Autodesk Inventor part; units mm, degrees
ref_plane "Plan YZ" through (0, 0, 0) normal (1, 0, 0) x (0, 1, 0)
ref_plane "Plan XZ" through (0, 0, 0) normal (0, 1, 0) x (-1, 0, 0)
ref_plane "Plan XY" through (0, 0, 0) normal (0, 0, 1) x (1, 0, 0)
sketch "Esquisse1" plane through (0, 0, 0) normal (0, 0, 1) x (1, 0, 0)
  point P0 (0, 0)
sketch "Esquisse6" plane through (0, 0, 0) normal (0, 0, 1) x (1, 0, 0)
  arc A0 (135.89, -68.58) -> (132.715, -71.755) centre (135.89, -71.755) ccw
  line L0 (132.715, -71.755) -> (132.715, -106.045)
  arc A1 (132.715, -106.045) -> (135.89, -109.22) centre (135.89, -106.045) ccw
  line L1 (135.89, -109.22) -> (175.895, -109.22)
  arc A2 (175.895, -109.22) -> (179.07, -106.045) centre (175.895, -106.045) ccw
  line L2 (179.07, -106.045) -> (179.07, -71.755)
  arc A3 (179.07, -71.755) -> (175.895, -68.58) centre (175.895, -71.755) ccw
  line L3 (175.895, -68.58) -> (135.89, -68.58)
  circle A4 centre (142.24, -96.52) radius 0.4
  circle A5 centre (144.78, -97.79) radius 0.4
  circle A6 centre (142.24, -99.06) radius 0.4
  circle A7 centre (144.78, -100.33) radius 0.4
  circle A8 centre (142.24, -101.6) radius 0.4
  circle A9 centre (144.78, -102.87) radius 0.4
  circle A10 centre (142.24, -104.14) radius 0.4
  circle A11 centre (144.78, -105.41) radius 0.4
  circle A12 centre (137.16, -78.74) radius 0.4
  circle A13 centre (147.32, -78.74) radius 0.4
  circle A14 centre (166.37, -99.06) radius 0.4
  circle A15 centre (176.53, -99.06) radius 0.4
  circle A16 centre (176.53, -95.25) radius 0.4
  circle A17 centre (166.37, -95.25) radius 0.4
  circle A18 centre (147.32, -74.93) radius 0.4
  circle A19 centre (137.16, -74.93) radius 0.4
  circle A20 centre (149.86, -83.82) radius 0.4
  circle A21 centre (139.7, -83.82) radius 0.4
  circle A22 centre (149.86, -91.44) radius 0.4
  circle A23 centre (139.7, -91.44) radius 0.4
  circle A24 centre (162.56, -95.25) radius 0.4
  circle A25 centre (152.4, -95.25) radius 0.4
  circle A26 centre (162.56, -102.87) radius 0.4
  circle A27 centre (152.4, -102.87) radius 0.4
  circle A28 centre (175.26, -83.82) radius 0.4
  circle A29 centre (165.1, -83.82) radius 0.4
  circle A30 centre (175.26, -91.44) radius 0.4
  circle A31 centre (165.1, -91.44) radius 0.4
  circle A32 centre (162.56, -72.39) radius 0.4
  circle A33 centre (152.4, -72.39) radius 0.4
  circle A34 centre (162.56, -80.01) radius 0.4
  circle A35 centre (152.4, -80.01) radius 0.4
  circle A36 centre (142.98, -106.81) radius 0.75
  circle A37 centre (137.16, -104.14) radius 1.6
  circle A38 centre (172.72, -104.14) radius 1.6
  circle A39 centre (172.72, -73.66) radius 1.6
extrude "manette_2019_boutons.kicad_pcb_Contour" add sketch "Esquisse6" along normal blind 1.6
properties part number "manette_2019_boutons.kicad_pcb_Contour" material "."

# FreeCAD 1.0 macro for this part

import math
import FreeCAD as App
import Part
import Sketcher
from FreeCAD import Vector
Q = App.Units.Quantity

doc = App.newDocument("Part")
body = doc.addObject("PartDesign::Body", "Body")

# Sketch on XY plane
sketch1 = doc.addObject("Sketcher::SketchObject", "Sketch")
body.addObject(sketch1)
sketch1.AttachmentSupport = (doc.XY_Plane, [""])
sketch1.MapMode = "FlatFace"
sketch1.addGeometry([
    Part.LineSegment(Vector(175.895, -68.58, 0), Vector(135.89, -68.58, 0)),  # 0
    Part.ArcOfCircle(Part.Circle(Vector(135.89, -71.755, 0), Vector(0, 0, 1), 3.175), math.radians(90), math.radians(180)),  # 1
    Part.LineSegment(Vector(132.715, -71.755, 0), Vector(132.715, -106.045, 0)),  # 2
    Part.ArcOfCircle(Part.Circle(Vector(135.89, -106.045, 0), Vector(0, 0, 1), 3.175), math.radians(180), math.radians(270)),  # 3
    Part.LineSegment(Vector(135.89, -109.22, 0), Vector(175.895, -109.22, 0)),  # 4
    Part.ArcOfCircle(Part.Circle(Vector(175.895, -106.045, 0), Vector(0, 0, 1), 3.175), math.radians(-90), math.radians(0)),  # 5
    Part.LineSegment(Vector(179.07, -106.045, 0), Vector(179.07, -71.755, 0)),  # 6
    Part.ArcOfCircle(Part.Circle(Vector(175.895, -71.755, 0), Vector(0, 0, 1), 3.175), math.radians(0), math.radians(90)),  # 7
    Part.Circle(Vector(142.98, -106.81, 0), Vector(0, 0, 1), 0.75),  # 8
    Part.Circle(Vector(137.16, -104.14, 0), Vector(0, 0, 1), 1.6),  # 9
    Part.Circle(Vector(142.24, -104.14, 0), Vector(0, 0, 1), 0.4),  # 10
    Part.Circle(Vector(142.24, -101.6, 0), Vector(0, 0, 1), 0.4),  # 11
    Part.Circle(Vector(144.78, -105.41, 0), Vector(0, 0, 1), 0.4),  # 12
    Part.Circle(Vector(144.78, -102.87, 0), Vector(0, 0, 1), 0.4),  # 13
    Part.Circle(Vector(144.78, -100.33, 0), Vector(0, 0, 1), 0.4),  # 14
    Part.Circle(Vector(152.4, -102.87, 0), Vector(0, 0, 1), 0.4),  # 15
    Part.Circle(Vector(142.24, -99.06, 0), Vector(0, 0, 1), 0.4),  # 16
    Part.Circle(Vector(142.24, -96.52, 0), Vector(0, 0, 1), 0.4),  # 17
    Part.Circle(Vector(139.7, -91.44, 0), Vector(0, 0, 1), 0.4),  # 18
    Part.Circle(Vector(144.78, -97.79, 0), Vector(0, 0, 1), 0.4),  # 19
    Part.Circle(Vector(152.4, -95.25, 0), Vector(0, 0, 1), 0.4),  # 20
    Part.Circle(Vector(149.86, -91.44, 0), Vector(0, 0, 1), 0.4),  # 21
    Part.Circle(Vector(162.56, -102.87, 0), Vector(0, 0, 1), 0.4),  # 22
    Part.Circle(Vector(172.72, -104.14, 0), Vector(0, 0, 1), 1.6),  # 23
    Part.Circle(Vector(166.37, -99.06, 0), Vector(0, 0, 1), 0.4),  # 24
    Part.Circle(Vector(162.56, -95.25, 0), Vector(0, 0, 1), 0.4),  # 25
    Part.Circle(Vector(166.37, -95.25, 0), Vector(0, 0, 1), 0.4),  # 26
    Part.Circle(Vector(165.1, -91.44, 0), Vector(0, 0, 1), 0.4),  # 27
    Part.Circle(Vector(176.53, -99.06, 0), Vector(0, 0, 1), 0.4),  # 28
    Part.Circle(Vector(176.53, -95.25, 0), Vector(0, 0, 1), 0.4),  # 29
    Part.Circle(Vector(175.26, -91.44, 0), Vector(0, 0, 1), 0.4),  # 30
    Part.Circle(Vector(139.7, -83.82, 0), Vector(0, 0, 1), 0.4),  # 31
    Part.Circle(Vector(149.86, -83.82, 0), Vector(0, 0, 1), 0.4),  # 32
    Part.Circle(Vector(152.4, -80.01, 0), Vector(0, 0, 1), 0.4),  # 33
    Part.Circle(Vector(137.16, -78.74, 0), Vector(0, 0, 1), 0.4),  # 34
    Part.Circle(Vector(137.16, -74.93, 0), Vector(0, 0, 1), 0.4),  # 35
    Part.Circle(Vector(147.32, -78.74, 0), Vector(0, 0, 1), 0.4),  # 36
    Part.Circle(Vector(147.32, -74.93, 0), Vector(0, 0, 1), 0.4),  # 37
    Part.Circle(Vector(152.4, -72.39, 0), Vector(0, 0, 1), 0.4),  # 38
    Part.Circle(Vector(165.1, -83.82, 0), Vector(0, 0, 1), 0.4),  # 39
    Part.Circle(Vector(162.56, -80.01, 0), Vector(0, 0, 1), 0.4),  # 40
    Part.Circle(Vector(175.26, -83.82, 0), Vector(0, 0, 1), 0.4),  # 41
    Part.Circle(Vector(162.56, -72.39, 0), Vector(0, 0, 1), 0.4),  # 42
    Part.Circle(Vector(172.72, -73.66, 0), Vector(0, 0, 1), 1.6),  # 43
], False)
sketch1.addConstraint([
    Sketcher.Constraint("Tangent", 0, 2, 1, 1),
    Sketcher.Constraint("Tangent", 1, 2, 2, 1),
    Sketcher.Constraint("Tangent", 2, 2, 3, 1),
    Sketcher.Constraint("Tangent", 3, 2, 4, 1),
    Sketcher.Constraint("Tangent", 4, 2, 5, 1),
    Sketcher.Constraint("Tangent", 5, 2, 6, 1),
    Sketcher.Constraint("Tangent", 6, 2, 7, 1),
    Sketcher.Constraint("Tangent", 7, 2, 0, 1),
    Sketcher.Constraint("Horizontal", 0),
    Sketcher.Constraint("Vertical", 2),
    Sketcher.Constraint("Horizontal", 4),
    Sketcher.Constraint("Vertical", 6),
    Sketcher.Constraint("Equal", 1, 3),
    Sketcher.Constraint("Equal", 3, 5),
    Sketcher.Constraint("Equal", 5, 7),
    Sketcher.Constraint("Equal", 10, 11),
    Sketcher.Constraint("Equal", 11, 12),
    Sketcher.Constraint("Equal", 12, 13),
    Sketcher.Constraint("Equal", 13, 14),
    Sketcher.Constraint("Equal", 14, 15),
    Sketcher.Constraint("Equal", 15, 16),
    Sketcher.Constraint("Equal", 16, 17),
    Sketcher.Constraint("Equal", 17, 18),
    Sketcher.Constraint("Equal", 18, 19),
    Sketcher.Constraint("Equal", 19, 20),
    Sketcher.Constraint("Equal", 20, 21),
    Sketcher.Constraint("Equal", 21, 22),
    Sketcher.Constraint("Equal", 9, 23),
    Sketcher.Constraint("Equal", 22, 24),
    Sketcher.Constraint("Equal", 24, 25),
    Sketcher.Constraint("Equal", 25, 26),
    Sketcher.Constraint("Equal", 26, 27),
    Sketcher.Constraint("Equal", 27, 28),
    Sketcher.Constraint("Equal", 28, 29),
    Sketcher.Constraint("Equal", 29, 30),
    Sketcher.Constraint("Equal", 30, 31),
    Sketcher.Constraint("Equal", 31, 32),
    Sketcher.Constraint("Equal", 32, 33),
    Sketcher.Constraint("Equal", 33, 34),
    Sketcher.Constraint("Equal", 34, 35),
    Sketcher.Constraint("Equal", 35, 36),
    Sketcher.Constraint("Equal", 36, 37),
    Sketcher.Constraint("Equal", 37, 38),
    Sketcher.Constraint("Equal", 38, 39),
    Sketcher.Constraint("Equal", 39, 40),
    Sketcher.Constraint("Equal", 40, 41),
    Sketcher.Constraint("Equal", 41, 42),
    Sketcher.Constraint("Equal", 23, 43),
    Sketcher.Constraint("Horizontal", 9, 3, 10, 3),
    Sketcher.Constraint("Horizontal", 13, 3, 15, 3),
    Sketcher.Constraint("Horizontal", 18, 3, 21, 3),
    Sketcher.Constraint("Horizontal", 15, 3, 22, 3),
    Sketcher.Constraint("Horizontal", 10, 3, 23, 3),
    Sketcher.Constraint("Horizontal", 16, 3, 24, 3),
    Sketcher.Constraint("Horizontal", 20, 3, 25, 3),
    Sketcher.Constraint("Horizontal", 25, 3, 26, 3),
    Sketcher.Constraint("Horizontal", 21, 3, 27, 3),
    Sketcher.Constraint("Horizontal", 24, 3, 28, 3),
    Sketcher.Constraint("Horizontal", 26, 3, 29, 3),
    Sketcher.Constraint("Horizontal", 27, 3, 30, 3),
    Sketcher.Constraint("Horizontal", 31, 3, 32, 3),
    Sketcher.Constraint("Horizontal", 34, 3, 36, 3),
    Sketcher.Constraint("Horizontal", 35, 3, 37, 3),
    Sketcher.Constraint("Horizontal", 32, 3, 39, 3),
    Sketcher.Constraint("Horizontal", 33, 3, 40, 3),
    Sketcher.Constraint("Horizontal", 39, 3, 41, 3),
    Sketcher.Constraint("Horizontal", 38, 3, 42, 3),
    Sketcher.Constraint("Vertical", 10, 3, 11, 3),
    Sketcher.Constraint("Vertical", 12, 3, 13, 3),
    Sketcher.Constraint("Vertical", 13, 3, 14, 3),
    Sketcher.Constraint("Vertical", 11, 3, 16, 3),
    Sketcher.Constraint("Vertical", 16, 3, 17, 3),
    Sketcher.Constraint("Vertical", 14, 3, 19, 3),
    Sketcher.Constraint("Vertical", 15, 3, 20, 3),
    Sketcher.Constraint("Vertical", 22, 3, 25, 3),
    Sketcher.Constraint("Vertical", 24, 3, 26, 3),
    Sketcher.Constraint("Vertical", 28, 3, 29, 3),
    Sketcher.Constraint("Vertical", 18, 3, 31, 3),
    Sketcher.Constraint("Vertical", 21, 3, 32, 3),
    Sketcher.Constraint("Vertical", 20, 3, 33, 3),
    Sketcher.Constraint("Vertical", 9, 3, 34, 3),
    Sketcher.Constraint("Vertical", 34, 3, 35, 3),
    Sketcher.Constraint("Vertical", 36, 3, 37, 3),
    Sketcher.Constraint("Vertical", 33, 3, 38, 3),
    Sketcher.Constraint("Vertical", 27, 3, 39, 3),
    Sketcher.Constraint("Vertical", 25, 3, 40, 3),
    Sketcher.Constraint("Vertical", 30, 3, 41, 3),
    Sketcher.Constraint("Vertical", 40, 3, 42, 3),
    Sketcher.Constraint("Vertical", 23, 3, 43, 3),
    Sketcher.Constraint("DistanceY", 11, 3, -1, 1, Q("4 in")),
    Sketcher.Constraint("DistanceX", -1, 1, 15, 3, Q("6 in")),
    Sketcher.Constraint("Radius", 1, Q("0.125 in")),
    Sketcher.Constraint("Diameter", 10, Q("0.0315 in")),
    Sketcher.Constraint("DistanceY", 2, 2, 2, 1, Q("1.35 in")),
    Sketcher.Constraint("DistanceX", -1, 1, 9, 3, Q("5.4 in")),
    Sketcher.Constraint("DistanceY", 9, 3, -1, 1, Q("4.1 in")),
    Sketcher.Constraint("DistanceX", -1, 1, 10, 3, Q("5.6 in")),
    Sketcher.Constraint("DistanceX", -1, 1, 12, 3, Q("5.7 in")),
    Sketcher.Constraint("DistanceY", 16, 3, -1, 1, Q("3.9 in")),
    Sketcher.Constraint("DistanceY", 17, 3, -1, 1, Q("3.8 in")),
    Sketcher.Constraint("DistanceX", -1, 1, 18, 3, Q("5.5 in")),
    Sketcher.Constraint("DistanceY", 18, 3, -1, 1, Q("3.6 in")),
    Sketcher.Constraint("DistanceX", -1, 1, 21, 3, Q("5.9 in")),
    Sketcher.Constraint("DistanceX", -1, 1, 22, 3, Q("6.4 in")),
    Sketcher.Constraint("DistanceX", -1, 1, 23, 3, Q("6.8 in")),
    Sketcher.Constraint("DistanceX", -1, 1, 27, 3, Q("6.5 in")),
    Sketcher.Constraint("DistanceX", -1, 1, 30, 3, Q("6.9 in")),
    Sketcher.Constraint("DistanceY", 31, 3, -1, 1, Q("3.3 in")),
    Sketcher.Constraint("DistanceY", 34, 3, -1, 1, Q("3.1 in")),
    Sketcher.Constraint("DistanceX", -1, 1, 36, 3, Q("5.8 in")),
    Sketcher.Constraint("DistanceY", 43, 3, -1, 1, Q("2.9 in")),
    Sketcher.Constraint("DistanceY", 0, 2, -1, 1, Q("2.7 in")),
    Sketcher.Constraint("DistanceY", 12, 3, 13, 3, Q("0.1 in")),
    Sketcher.Constraint("DistanceY", 13, 3, 14, 3, Q("0.1 in")),
    Sketcher.Constraint("DistanceY", 14, 3, 19, 3, Q("0.1 in")),
    Sketcher.Constraint("DistanceY", 15, 3, 20, 3, Q("0.3 in")),
    Sketcher.Constraint("DistanceX", 24, 3, 28, 3, Q("0.4 in")),
    Sketcher.Constraint("DistanceY", 20, 3, 33, 3, Q("0.6 in")),
    Sketcher.Constraint("DistanceY", 33, 3, 35, 3, Q("0.2 in")),
    Sketcher.Constraint("DistanceY", 37, 3, 38, 3, Q("0.1 in")),
    Sketcher.Constraint("DistanceX", 28, 3, 5, 2, Q("0.1 in")),
    Sketcher.Constraint("Diameter", 8, Q("1.5 mm")),
    Sketcher.Constraint("Diameter", 9, Q("3.2 mm")),
    Sketcher.Constraint("DistanceX", 0, 2, 0, 1, Q("1.575 in")),
    Sketcher.Constraint("DistanceX", -1, 1, 1, 3, Q("5.35 in")),
    Sketcher.Constraint("DistanceY", 12, 3, -1, 1, Q("4.15 in")),
    Sketcher.Constraint("DistanceX", -1, 1, 8, 3, Q("142.98 mm")),
    Sketcher.Constraint("DistanceY", 8, 3, -1, 1, Q("106.81 mm")),
])
pad1 = doc.addObject("PartDesign::Pad", "Pad")
body.addObject(pad1)
pad1.Profile = sketch1
pad1.Length = Q("0.0629921 in")

doc.recompute()
